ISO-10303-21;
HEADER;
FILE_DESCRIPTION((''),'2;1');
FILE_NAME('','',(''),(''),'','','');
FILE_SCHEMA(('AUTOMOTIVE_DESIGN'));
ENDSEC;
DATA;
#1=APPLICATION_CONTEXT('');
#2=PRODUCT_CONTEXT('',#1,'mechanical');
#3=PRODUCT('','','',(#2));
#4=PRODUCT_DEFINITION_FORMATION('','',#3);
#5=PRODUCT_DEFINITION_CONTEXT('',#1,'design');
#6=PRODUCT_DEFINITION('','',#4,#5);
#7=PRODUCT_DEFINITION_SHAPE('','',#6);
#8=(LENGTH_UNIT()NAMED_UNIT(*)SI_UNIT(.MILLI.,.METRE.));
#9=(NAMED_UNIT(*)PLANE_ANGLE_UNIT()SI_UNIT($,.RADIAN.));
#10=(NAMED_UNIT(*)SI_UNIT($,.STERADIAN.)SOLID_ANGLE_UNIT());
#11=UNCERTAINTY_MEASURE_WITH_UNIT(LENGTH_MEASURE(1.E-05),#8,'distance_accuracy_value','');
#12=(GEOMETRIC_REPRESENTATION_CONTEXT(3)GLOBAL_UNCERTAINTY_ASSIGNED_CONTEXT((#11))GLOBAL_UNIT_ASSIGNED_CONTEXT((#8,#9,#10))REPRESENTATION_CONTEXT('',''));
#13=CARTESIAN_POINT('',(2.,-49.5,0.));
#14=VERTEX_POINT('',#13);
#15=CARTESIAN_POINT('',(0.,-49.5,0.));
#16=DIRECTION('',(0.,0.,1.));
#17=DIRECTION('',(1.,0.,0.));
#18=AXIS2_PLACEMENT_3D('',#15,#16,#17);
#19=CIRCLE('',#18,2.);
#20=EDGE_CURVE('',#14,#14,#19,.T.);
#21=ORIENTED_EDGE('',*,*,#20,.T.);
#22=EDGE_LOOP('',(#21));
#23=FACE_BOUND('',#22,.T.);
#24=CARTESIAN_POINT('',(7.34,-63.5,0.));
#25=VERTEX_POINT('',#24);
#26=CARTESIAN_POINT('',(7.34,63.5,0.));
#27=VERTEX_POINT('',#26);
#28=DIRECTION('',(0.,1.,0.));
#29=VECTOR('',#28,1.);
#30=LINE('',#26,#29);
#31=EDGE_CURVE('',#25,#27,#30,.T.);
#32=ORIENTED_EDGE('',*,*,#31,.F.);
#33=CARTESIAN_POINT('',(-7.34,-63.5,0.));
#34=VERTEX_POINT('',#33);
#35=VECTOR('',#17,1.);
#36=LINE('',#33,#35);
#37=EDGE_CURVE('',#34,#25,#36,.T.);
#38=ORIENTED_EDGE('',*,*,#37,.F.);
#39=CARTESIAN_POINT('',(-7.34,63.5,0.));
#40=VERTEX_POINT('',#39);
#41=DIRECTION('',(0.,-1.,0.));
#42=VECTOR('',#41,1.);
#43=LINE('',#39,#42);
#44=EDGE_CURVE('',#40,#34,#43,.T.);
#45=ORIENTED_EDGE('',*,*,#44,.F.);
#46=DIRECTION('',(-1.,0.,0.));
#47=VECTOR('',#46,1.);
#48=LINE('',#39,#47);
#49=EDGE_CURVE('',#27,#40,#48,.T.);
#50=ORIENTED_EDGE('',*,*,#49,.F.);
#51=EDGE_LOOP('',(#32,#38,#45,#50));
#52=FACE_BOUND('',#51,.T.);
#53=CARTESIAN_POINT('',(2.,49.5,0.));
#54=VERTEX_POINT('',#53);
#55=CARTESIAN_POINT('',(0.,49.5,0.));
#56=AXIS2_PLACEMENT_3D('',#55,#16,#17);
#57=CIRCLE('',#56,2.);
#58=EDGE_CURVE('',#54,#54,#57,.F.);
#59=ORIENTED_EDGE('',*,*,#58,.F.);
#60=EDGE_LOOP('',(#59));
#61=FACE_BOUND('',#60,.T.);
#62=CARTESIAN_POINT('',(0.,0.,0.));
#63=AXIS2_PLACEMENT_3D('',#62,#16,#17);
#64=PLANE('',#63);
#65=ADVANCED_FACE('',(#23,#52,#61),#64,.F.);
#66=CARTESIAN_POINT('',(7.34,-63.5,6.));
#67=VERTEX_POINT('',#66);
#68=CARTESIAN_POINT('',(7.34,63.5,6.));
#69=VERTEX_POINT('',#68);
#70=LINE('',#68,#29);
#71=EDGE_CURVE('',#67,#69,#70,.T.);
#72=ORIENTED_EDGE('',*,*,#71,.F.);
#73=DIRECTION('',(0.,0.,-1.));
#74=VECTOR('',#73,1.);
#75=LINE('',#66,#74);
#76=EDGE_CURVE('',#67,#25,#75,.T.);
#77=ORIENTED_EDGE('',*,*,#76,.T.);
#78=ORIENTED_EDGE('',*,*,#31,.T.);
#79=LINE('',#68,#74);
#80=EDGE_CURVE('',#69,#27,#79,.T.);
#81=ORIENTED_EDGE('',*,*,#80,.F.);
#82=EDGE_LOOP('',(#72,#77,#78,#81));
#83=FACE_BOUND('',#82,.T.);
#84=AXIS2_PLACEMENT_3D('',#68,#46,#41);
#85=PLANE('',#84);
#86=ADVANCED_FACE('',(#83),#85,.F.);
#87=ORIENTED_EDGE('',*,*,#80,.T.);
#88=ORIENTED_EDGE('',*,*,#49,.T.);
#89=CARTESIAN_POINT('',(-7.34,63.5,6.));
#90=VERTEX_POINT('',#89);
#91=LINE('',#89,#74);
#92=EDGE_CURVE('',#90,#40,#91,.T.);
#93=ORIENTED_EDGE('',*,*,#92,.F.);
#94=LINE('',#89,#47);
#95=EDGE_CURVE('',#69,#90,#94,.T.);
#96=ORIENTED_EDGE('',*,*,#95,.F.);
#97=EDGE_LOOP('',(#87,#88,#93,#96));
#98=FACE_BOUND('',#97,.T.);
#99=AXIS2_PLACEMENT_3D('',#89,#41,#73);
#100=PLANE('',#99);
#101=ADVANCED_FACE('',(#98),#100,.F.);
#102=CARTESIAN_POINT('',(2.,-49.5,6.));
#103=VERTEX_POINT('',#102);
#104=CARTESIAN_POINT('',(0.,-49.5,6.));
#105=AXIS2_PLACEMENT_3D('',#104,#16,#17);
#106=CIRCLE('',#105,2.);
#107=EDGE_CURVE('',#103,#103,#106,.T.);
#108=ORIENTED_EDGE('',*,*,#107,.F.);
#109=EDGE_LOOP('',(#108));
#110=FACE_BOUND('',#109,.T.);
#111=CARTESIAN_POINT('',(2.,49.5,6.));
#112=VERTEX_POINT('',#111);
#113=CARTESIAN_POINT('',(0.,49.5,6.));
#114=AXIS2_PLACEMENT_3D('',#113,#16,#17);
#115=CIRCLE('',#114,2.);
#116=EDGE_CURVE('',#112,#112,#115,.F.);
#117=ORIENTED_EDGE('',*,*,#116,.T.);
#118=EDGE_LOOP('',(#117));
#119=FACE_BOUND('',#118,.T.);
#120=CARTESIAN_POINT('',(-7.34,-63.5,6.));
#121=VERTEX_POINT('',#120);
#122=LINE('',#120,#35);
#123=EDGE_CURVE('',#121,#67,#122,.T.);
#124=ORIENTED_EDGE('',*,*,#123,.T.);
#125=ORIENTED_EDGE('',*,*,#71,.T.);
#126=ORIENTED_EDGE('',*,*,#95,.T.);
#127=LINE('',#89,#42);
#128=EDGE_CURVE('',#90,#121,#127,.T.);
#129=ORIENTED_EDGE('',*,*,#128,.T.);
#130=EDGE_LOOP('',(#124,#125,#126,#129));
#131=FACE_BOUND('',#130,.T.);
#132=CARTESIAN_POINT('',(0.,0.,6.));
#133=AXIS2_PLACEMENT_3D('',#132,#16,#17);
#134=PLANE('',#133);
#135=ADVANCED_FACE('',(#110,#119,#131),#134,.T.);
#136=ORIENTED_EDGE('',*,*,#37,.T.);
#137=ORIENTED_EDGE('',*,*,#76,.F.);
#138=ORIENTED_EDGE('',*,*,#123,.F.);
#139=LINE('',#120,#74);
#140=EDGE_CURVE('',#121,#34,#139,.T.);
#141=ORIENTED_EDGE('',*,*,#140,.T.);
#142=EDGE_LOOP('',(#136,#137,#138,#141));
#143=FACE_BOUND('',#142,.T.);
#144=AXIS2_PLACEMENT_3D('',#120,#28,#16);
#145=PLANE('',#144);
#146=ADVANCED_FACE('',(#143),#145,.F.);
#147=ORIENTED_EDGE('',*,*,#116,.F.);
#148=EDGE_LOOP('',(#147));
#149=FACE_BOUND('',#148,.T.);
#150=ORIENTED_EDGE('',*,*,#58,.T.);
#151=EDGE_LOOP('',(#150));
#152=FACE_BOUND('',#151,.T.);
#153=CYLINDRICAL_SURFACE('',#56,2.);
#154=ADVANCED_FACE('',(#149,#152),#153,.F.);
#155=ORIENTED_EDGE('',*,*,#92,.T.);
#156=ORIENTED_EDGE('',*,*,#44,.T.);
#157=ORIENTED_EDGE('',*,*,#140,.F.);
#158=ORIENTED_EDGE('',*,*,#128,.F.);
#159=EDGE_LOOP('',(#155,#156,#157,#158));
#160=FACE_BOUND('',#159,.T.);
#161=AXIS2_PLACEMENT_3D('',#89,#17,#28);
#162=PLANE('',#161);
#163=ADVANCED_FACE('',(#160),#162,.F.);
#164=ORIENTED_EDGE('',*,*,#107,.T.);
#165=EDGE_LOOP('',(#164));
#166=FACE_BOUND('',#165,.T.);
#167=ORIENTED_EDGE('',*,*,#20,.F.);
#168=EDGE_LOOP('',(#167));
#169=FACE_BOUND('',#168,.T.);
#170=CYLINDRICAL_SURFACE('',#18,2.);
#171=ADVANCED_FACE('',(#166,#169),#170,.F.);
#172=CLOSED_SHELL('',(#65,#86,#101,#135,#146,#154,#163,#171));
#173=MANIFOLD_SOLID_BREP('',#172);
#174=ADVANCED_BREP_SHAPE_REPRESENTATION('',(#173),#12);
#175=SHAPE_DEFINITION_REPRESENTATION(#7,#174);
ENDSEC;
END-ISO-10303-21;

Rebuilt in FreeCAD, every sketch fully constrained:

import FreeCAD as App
import Part
import Sketcher
from FreeCAD import Vector
Q = App.Units.Quantity


def add_polygon(sketch, points):
    """Adds a closed chain of lines whose ends are joined by coincident constraints."""
    first, n = sketch.GeometryCount, len(points)
    for a, b in zip(points, points[1:] + points[:1]):
        sketch.addGeometry(Part.LineSegment(App.Vector(*a, 0), App.Vector(*b, 0)), False)
    for i in range(n):
        sketch.addConstraint(Sketcher.Constraint("Coincident", first + i, 2, first + (i + 1) % n, 1))

doc = App.newDocument("Part")
body = doc.addObject("PartDesign::Body", "Body")

sketch1 = body.newObject("Sketcher::SketchObject", "Sketch")
sketch1.AttachmentSupport = (doc.getObject("XY_Plane"), [""])
sketch1.MapMode = "FlatFace"
add_polygon(sketch1, [(-7.34, 63.5), (-7.34, -63.5), (7.34, -63.5), (7.34, 63.5)])
sketch1.addConstraint([
    Sketcher.Constraint("Vertical", 0),
    Sketcher.Constraint("Horizontal", 1),
    Sketcher.Constraint("Vertical", 2),
    Sketcher.Constraint("Horizontal", 3),
    Sketcher.Constraint("Symmetric", 0, 2, 2, 2, -1, 1),
    Sketcher.Constraint("DistanceY", 0, 2, 0, 1, Q("127 mm")),
    Sketcher.Constraint("DistanceX", 1, 1, 1, 2, Q("14.68 mm")),
])
pad1 = body.newObject("PartDesign::Pad", "Pad")
pad1.Profile = sketch1
pad1.Length = 6

sketch2 = body.newObject("Sketcher::SketchObject", "Sketch001")
sketch2.AttachmentSupport = (doc.getObject("XY_Plane"), [""])
sketch2.MapMode = "FlatFace"
sketch2.AttachmentOffset = App.Placement(Vector(0, 0, 6), App.Rotation())
sketch2.addGeometry([
    Part.Circle(Vector(0, -49.5, 0), Vector(0, 0, 1), 2),
    Part.Circle(Vector(0, 49.5, 0), Vector(0, 0, 1), 2),
], False)
sketch2.addConstraint([
    Sketcher.Constraint("Equal", 0, 1),
    Sketcher.Constraint("Symmetric", 0, 3, 1, 3, -1, 1),
    Sketcher.Constraint("PointOnObject", 0, 3, -2),
    Sketcher.Constraint("Diameter", 0, Q("4 mm")),
    Sketcher.Constraint("DistanceY", 0, 3, 1, 3, Q("99 mm")),
])
pocket1 = body.newObject("PartDesign::Pocket", "Pocket")
pocket1.Profile = sketch2
pocket1.Length = 6

doc.recompute()
